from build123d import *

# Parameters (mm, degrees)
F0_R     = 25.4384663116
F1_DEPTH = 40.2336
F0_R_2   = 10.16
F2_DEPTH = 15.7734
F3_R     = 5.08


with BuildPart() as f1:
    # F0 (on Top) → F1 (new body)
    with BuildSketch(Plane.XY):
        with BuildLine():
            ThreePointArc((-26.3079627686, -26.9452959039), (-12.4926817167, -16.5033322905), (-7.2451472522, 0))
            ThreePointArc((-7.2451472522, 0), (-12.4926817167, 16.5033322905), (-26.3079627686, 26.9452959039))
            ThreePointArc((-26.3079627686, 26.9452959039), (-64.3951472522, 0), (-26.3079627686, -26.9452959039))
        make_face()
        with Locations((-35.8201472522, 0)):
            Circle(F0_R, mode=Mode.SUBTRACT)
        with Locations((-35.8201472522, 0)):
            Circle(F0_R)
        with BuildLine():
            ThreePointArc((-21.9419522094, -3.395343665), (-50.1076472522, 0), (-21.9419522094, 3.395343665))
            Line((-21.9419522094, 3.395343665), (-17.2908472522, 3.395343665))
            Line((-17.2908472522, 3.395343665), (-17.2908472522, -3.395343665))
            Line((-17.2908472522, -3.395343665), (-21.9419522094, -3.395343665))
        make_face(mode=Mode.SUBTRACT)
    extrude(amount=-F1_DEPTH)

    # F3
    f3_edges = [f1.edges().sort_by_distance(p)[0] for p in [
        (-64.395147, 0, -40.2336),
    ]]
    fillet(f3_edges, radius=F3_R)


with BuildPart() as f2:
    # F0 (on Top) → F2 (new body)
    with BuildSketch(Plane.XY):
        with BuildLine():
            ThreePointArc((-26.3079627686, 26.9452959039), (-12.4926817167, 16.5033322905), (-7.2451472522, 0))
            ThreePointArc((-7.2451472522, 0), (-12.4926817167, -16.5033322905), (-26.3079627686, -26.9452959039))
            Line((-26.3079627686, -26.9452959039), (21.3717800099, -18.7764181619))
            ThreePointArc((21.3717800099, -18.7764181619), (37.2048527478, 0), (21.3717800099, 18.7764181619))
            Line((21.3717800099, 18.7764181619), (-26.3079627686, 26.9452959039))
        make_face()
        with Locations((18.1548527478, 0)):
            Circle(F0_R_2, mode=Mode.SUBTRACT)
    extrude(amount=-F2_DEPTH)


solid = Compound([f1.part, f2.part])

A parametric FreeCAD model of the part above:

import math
import FreeCAD as App
import Part
import Sketcher
Q = App.Units.Quantity


def edges_at(feature, points):
    """Names of the edges that pass closest to the given points."""
    edges = feature.Shape.Edges
    near = lambda p: min(range(len(edges)), key=lambda i: edges[i].distToShape(Part.Vertex(*p))[0])
    return sorted({f"Edge{near(p) + 1}" for p in points})

doc = App.newDocument("Part")
body = doc.addObject("PartDesign::Body", "Body")

# Sketch on XY plane
sketch1 = doc.addObject("Sketcher::SketchObject", "Sketch")
body.addObject(sketch1)
sketch1.AttachmentSupport = (doc.XY_Plane, [""])
sketch1.MapMode = "FlatFace"
sketch1.addGeometry([
    Part.ArcOfCircle(Part.Circle(App.Vector(-35.820147, 0, 0), App.Vector(0, 0, 1), 28.575), math.radians(-70.556032), math.radians(0)),  # 0
    Part.ArcOfCircle(Part.Circle(App.Vector(-35.820147, 0, 0), App.Vector(0, 0, 1), 28.575), math.radians(0), math.radians(70.556032)),  # 1
    Part.ArcOfCircle(Part.Circle(App.Vector(-35.820147, 0, 0), App.Vector(0, 0, 1), 28.575), math.radians(70.556032), math.radians(289.443968)),  # 2
    Part.LineSegment(App.Vector(-17.290847, -3.395344, 0), App.Vector(-21.941952, -3.395344, 0)),  # 3
    Part.ArcOfCircle(Part.Circle(App.Vector(-35.820147, 0, 0), App.Vector(0, 0, 1), 14.2875), math.radians(13.74755), math.radians(346.25245)),  # 4
    Part.LineSegment(App.Vector(-21.941952, 3.395344, 0), App.Vector(-17.290847, 3.395344, 0)),  # 5
    Part.LineSegment(App.Vector(-17.290847, 3.395344, 0), App.Vector(-17.290847, -3.395344, 0)),  # 6
], False)
sketch1.addConstraint([
    Sketcher.Constraint("Tangent", 0, 2, 1, 1),
    Sketcher.Constraint("Tangent", 1, 2, 2, 1),
    Sketcher.Constraint("Tangent", 2, 2, 0, 1),
    Sketcher.Constraint("Coincident", 3, 2, 4, 2),
    Sketcher.Constraint("Coincident", 4, 1, 5, 1),
    Sketcher.Constraint("Coincident", 5, 2, 6, 1),
    Sketcher.Constraint("Coincident", 6, 2, 3, 1),
    Sketcher.Constraint("Horizontal", 3),
    Sketcher.Constraint("Horizontal", 5),
    Sketcher.Constraint("Vertical", 6),
    Sketcher.Constraint("Coincident", 4, 3, 0, 3),
    Sketcher.Constraint("Symmetric", 1, 2, 2, 2, -1),
    Sketcher.Constraint("PointOnObject", 0, 2, -1),
    Sketcher.Constraint("Vertical", 3, 2, 4, 1),
    Sketcher.Constraint("Radius", 0, Q("1.125 in")),
    Sketcher.Constraint("Radius", 4, Q("0.5625 in")),
    Sketcher.Constraint("DistanceX", 5, 2, 0, 2, Q("0.3955 in")),
    Sketcher.Constraint("DistanceX", 3, 2, 3, 1, 4.651105),
    Sketcher.Constraint("DistanceX", 0, 3, -1, 1, 35.820147),
    Sketcher.Constraint("DistanceX", 1, 2, -1, 1, 26.307963),
])
pad1 = doc.addObject("PartDesign::Pad", "Pad")
body.addObject(pad1)
pad1.Profile = sketch1
pad1.Length = Q("1.584 in")
pad1.Reversed = True
doc.recompute()

fillet = doc.addObject("PartDesign::Fillet", "Fillet")
body.addObject(fillet)
fillet.Base = (pad1, edges_at(pad1, [(-64.395, 0, -40.234)]))
fillet.Radius = Q("0.2 in")
body2 = doc.addObject("PartDesign::Body", "Body001")

# Sketch on XY plane
sketch2 = doc.addObject("Sketcher::SketchObject", "Sketch001")
body2.addObject(sketch2)
sketch2.AttachmentSupport = (doc.getObject("XY_Plane001"), [""])
sketch2.MapMode = "FlatFace"
sketch2.addGeometry([
    Part.ArcOfCircle(Part.Circle(App.Vector(-35.820147, 0, 0), App.Vector(0, 0, 1), 28.575), math.radians(0), math.radians(70.556032)),  # 0
    Part.ArcOfCircle(Part.Circle(App.Vector(-35.820147, 0, 0), App.Vector(0, 0, 1), 28.575), math.radians(-70.556032), math.radians(0)),  # 1
    Part.LineSegment(App.Vector(-26.307963, -26.945296, 0), App.Vector(21.37178, -18.776418, 0)),  # 2
    Part.ArcOfCircle(Part.Circle(App.Vector(18.154853, 0, 0), App.Vector(0, 0, 1), 19.05), math.radians(-80.278016), math.radians(80.278016)),  # 3
    Part.LineSegment(App.Vector(21.37178, 18.776418, 0), App.Vector(-26.307963, 26.945296, 0)),  # 4
    Part.Circle(App.Vector(18.154853, 0, 0), App.Vector(0, 0, 1), 10.16),  # 5
], False)
sketch2.addConstraint([
    Sketcher.Constraint("Tangent", 0, 1, 1, 2),
    Sketcher.Constraint("Coincident", 1, 1, 2, 1),
    Sketcher.Constraint("Tangent", 2, 2, 3, 1),
    Sketcher.Constraint("Tangent", 3, 2, 4, 1),
    Sketcher.Constraint("Coincident", 4, 2, 0, 2),
    Sketcher.Constraint("Coincident", 5, 3, 3, 3),
    Sketcher.Constraint("Equal", 0, 1),
    Sketcher.Constraint("Symmetric", 2, 2, 3, 2, -1),
    Sketcher.Constraint("PointOnObject", 0, 3, -1),
    Sketcher.Constraint("PointOnObject", 0, 1, -1),
    Sketcher.Constraint("Diameter", 5, Q("0.8 in")),
    Sketcher.Constraint("Radius", 3, Q("0.75 in")),
    Sketcher.Constraint("Radius", 0, Q("1.125 in")),
    Sketcher.Constraint("DistanceX", 0, 1, 3, 3, Q("1 in")),
    Sketcher.Constraint("Distance", 2, 48.374461),
    Sketcher.Constraint("DistanceX", -1, 1, 2, 2, 21.37178),
])
pad2 = doc.addObject("PartDesign::Pad", "Pad001")
body2.addObject(pad2)
pad2.Profile = sketch2
pad2.Length = Q("0.621 in")
pad2.Reversed = True

doc.recompute()
